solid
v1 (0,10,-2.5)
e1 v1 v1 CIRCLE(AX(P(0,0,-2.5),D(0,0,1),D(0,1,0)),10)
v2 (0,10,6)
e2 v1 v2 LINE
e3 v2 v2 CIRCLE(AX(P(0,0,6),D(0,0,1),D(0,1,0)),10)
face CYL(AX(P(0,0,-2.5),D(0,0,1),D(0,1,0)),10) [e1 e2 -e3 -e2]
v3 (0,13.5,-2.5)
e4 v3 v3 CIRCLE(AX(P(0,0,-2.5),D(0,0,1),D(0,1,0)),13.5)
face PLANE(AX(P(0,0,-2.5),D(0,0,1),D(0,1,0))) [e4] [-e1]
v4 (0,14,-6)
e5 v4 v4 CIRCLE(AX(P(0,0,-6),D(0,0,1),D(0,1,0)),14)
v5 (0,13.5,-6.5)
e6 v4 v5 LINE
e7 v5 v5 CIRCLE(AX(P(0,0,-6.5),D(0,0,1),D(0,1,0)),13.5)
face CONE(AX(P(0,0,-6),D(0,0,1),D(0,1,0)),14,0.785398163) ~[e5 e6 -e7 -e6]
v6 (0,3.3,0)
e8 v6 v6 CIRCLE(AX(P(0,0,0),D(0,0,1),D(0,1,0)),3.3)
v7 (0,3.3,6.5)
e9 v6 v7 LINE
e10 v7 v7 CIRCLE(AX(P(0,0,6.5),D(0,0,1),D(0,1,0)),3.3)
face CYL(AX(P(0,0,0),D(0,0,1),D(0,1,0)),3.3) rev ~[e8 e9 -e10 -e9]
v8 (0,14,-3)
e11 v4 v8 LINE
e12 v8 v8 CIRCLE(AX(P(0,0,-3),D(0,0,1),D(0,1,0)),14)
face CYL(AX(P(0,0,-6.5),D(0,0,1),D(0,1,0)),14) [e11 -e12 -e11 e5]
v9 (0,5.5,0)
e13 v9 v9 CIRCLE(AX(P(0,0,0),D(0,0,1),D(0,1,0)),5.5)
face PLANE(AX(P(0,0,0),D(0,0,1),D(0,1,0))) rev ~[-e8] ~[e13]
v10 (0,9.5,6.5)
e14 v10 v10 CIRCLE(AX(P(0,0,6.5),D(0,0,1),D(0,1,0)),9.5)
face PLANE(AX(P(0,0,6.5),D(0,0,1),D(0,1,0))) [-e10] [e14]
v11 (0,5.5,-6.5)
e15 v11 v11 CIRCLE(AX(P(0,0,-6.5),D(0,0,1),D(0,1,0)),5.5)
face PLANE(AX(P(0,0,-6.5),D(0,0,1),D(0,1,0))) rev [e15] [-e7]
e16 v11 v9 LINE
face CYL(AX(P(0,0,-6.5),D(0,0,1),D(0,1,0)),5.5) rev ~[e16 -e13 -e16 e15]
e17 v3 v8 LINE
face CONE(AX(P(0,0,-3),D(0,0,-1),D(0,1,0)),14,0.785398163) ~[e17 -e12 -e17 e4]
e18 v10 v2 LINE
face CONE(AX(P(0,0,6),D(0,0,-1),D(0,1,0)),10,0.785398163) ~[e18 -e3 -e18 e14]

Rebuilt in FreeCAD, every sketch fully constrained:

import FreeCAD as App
import Part
import Sketcher

V = App.Vector


def edges_at(feature, points):
    """Names of the edges that pass closest to the given points."""
    edges = feature.Shape.Edges
    near = lambda p: min(range(len(edges)), key=lambda i: edges[i].distToShape(Part.Vertex(*p))[0])
    return sorted({f"Edge{near(p) + 1}" for p in points})


def add_polygon(sketch, points):
    """Adds a closed chain of lines whose ends are joined by coincident constraints."""
    first, n = sketch.GeometryCount, len(points)
    for a, b in zip(points, points[1:] + points[:1]):
        sketch.addGeometry(Part.LineSegment(App.Vector(*a, 0), App.Vector(*b, 0)), False)
    for i in range(n):
        sketch.addConstraint(Sketcher.Constraint("Coincident", first + i, 2, first + (i + 1) % n, 1))

doc = App.newDocument("Part")
params = doc.addObject("Spreadsheet::Sheet", "Params")
for row, (alias, value) in enumerate([
    ("sketch1_width", "4 mm"),
    ("sketch1_height", "13 mm"),
    ("sketch1_width2", "14 mm"),
    ("revolution_angle", "360 deg"),
    ("sketch2_diameter", "6.6 mm"),
    ("hole_diameter", "6.6 mm"),
    ("hole_cbore_diameter", "11 mm"),
    ("hole_cbore_depth", "6.5 mm"),
    ("chamfer_size", "0.5 mm"),
], start=1):
    params.set(f"A{row}", alias)
    params.set(f"B{row}", "=" + value)
    params.setAlias(f"B{row}", alias)

body = doc.addObject("PartDesign::Body", "Body")

# Sketch on YZ plane
sketch1 = body.newObject("Sketcher::SketchObject", "Sketch")
sketch1.AttachmentSupport = (doc.getObject("YZ_Plane"), [""])
sketch1.MapMode = "FlatFace"
add_polygon(sketch1, [(0, 6.5), (0, -6.5), (14, -6.5), (14, -2.5), (10, -2.5), (10, 6.5)])  # lines 0-5
sketch1.addConstraint(Sketcher.Constraint("Vertical", 0))
sketch1.addConstraint(Sketcher.Constraint("Horizontal", 1))
sketch1.addConstraint(Sketcher.Constraint("Vertical", 2))
sketch1.addConstraint(Sketcher.Constraint("Horizontal", 3))
sketch1.addConstraint(Sketcher.Constraint("Vertical", 4))
sketch1.addConstraint(Sketcher.Constraint("Horizontal", 5))
sketch1.addConstraint(Sketcher.Constraint("Symmetric", 0, 2, 5, 2, -1, 1))
sketch1.addConstraint(Sketcher.Constraint("Equal", 3, 2))
sketch1.addConstraint(Sketcher.Constraint("DistanceX", 3, 2, 3, 1, 4.0))
sketch1.addConstraint(Sketcher.Constraint("DistanceY", 0, 2, 0, 1, 13.0))
sketch1.addConstraint(Sketcher.Constraint("DistanceX", 1, 1, 1, 2, 14.0))
sketch1.setExpression("Constraints[14]", "Params.sketch1_width")
sketch1.setExpression("Constraints[15]", "Params.sketch1_height")
sketch1.setExpression("Constraints[16]", "Params.sketch1_width2")
revolution = body.newObject("PartDesign::Revolution", "Revolution")
revolution.Profile = sketch1
revolution.ReferenceAxis = (sketch1, ["V_Axis"])
revolution.setExpression("Angle", "Params.revolution_angle")

# Sketch on XY plane
sketch2 = body.newObject("Sketcher::SketchObject", "Sketch001")
sketch2.AttachmentSupport = (doc.getObject("XY_Plane"), [""])
sketch2.MapMode = "FlatFace"
sketch2.AttachmentOffset = App.Placement(V(0, 0, -6.5), App.Rotation())
sketch2.addGeometry(Part.Circle(V(0, 0, 0), V(0, 0, 1), 3.3), False)
sketch2.addConstraint(Sketcher.Constraint("Coincident", 0, 3, -1, 1))
sketch2.addConstraint(Sketcher.Constraint("Diameter", 0, 6.6))
sketch2.setExpression("Constraints[1]", "Params.sketch2_diameter")
doc.recompute()
hole = body.newObject("PartDesign::Hole", "Hole")
hole.Profile = sketch2
hole.ThreadType = "None"
hole.setExpression("Diameter", "Params.hole_diameter")
hole.DepthType = "ThroughAll"
hole.HoleCutType = "Counterbore"
hole.setExpression("HoleCutDiameter", "Params.hole_cbore_diameter")
hole.setExpression("HoleCutDepth", "Params.hole_cbore_depth")
hole.Reversed = True
doc.recompute()

chamfer = body.newObject("PartDesign::Chamfer", "Chamfer")
chamfer.Base = (hole, edges_at(hole, [(0, -10, 6.5), (0, -14, -2.5), (0, -14, -6.5)]))
chamfer.setExpression("Size", "Params.chamfer_size")

doc.recompute()
